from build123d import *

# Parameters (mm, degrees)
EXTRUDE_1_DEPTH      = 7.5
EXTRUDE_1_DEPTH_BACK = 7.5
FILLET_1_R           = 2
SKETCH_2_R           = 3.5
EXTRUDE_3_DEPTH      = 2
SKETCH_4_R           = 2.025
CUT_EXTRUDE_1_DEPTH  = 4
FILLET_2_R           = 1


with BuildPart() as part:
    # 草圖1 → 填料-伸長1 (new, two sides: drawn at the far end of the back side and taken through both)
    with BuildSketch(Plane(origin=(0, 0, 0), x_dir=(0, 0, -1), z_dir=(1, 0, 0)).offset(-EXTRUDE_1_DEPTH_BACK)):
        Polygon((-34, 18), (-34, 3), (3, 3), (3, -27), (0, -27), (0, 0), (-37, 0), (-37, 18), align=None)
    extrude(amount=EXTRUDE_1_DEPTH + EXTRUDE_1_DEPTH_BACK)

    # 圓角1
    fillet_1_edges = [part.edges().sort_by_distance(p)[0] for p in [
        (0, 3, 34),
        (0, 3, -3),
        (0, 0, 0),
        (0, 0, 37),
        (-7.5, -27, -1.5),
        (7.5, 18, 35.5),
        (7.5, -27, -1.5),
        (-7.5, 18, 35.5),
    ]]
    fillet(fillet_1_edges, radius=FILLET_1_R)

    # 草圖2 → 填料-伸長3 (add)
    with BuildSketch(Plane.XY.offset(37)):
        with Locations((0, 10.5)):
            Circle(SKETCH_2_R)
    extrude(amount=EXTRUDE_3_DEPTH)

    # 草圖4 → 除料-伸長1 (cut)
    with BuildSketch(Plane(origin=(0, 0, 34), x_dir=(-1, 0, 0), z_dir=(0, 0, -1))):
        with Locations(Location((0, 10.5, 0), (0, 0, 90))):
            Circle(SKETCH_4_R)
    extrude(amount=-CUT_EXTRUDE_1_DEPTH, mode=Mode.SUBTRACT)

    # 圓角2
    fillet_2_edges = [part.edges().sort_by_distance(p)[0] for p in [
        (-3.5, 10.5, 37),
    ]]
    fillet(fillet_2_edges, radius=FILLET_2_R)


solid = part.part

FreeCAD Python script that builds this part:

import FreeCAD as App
import Part
import Sketcher
from FreeCAD import Vector


def edges_at(feature, points):
    """Names of the edges that pass closest to the given points."""
    edges = feature.Shape.Edges
    near = lambda p: min(range(len(edges)), key=lambda i: edges[i].distToShape(Part.Vertex(*p))[0])
    return sorted({f"Edge{near(p) + 1}" for p in points})

doc = App.newDocument("Part")
body = doc.addObject("PartDesign::Body", "Body")

# Sketch on YZ plane
sketch1 = body.newObject("Sketcher::SketchObject", "Sketch")
sketch1.AttachmentSupport = (doc.getObject("YZ_Plane"), [""])
sketch1.MapMode = "FlatFace"
sketch1.addGeometry([
    Part.LineSegment(Vector(3, 34, 0), Vector(18, 34, 0)),  # 0
    Part.LineSegment(Vector(18, 34, 0), Vector(18, 37, 0)),  # 1
    Part.LineSegment(Vector(18, 37, 0), Vector(0, 37, 0)),  # 2
    Part.LineSegment(Vector(0, 37, 0), Vector(0, 0, 0)),  # 3
    Part.LineSegment(Vector(0, 0, 0), Vector(-27, 0, 0)),  # 4
    Part.LineSegment(Vector(-27, 0, 0), Vector(-27, -3, 0)),  # 5
    Part.LineSegment(Vector(-27, -3, 0), Vector(3, -3, 0)),  # 6
    Part.LineSegment(Vector(3, -3, 0), Vector(3, 34, 0)),  # 7
], False)
sketch1.addConstraint([
    Sketcher.Constraint("Coincident", 0, 2, 1, 1),
    Sketcher.Constraint("Coincident", 1, 2, 2, 1),
    Sketcher.Constraint("Coincident", 2, 2, 3, 1),
    Sketcher.Constraint("Coincident", 3, 2, 4, 1),
    Sketcher.Constraint("Coincident", 4, 2, 5, 1),
    Sketcher.Constraint("Coincident", 5, 2, 6, 1),
    Sketcher.Constraint("Coincident", 6, 2, 7, 1),
    Sketcher.Constraint("Coincident", 7, 2, 0, 1),
    Sketcher.Constraint("Horizontal", 0),
    Sketcher.Constraint("Vertical", 1),
    Sketcher.Constraint("Horizontal", 2),
    Sketcher.Constraint("Vertical", 3),
    Sketcher.Constraint("Horizontal", 4),
    Sketcher.Constraint("Vertical", 5),
    Sketcher.Constraint("Horizontal", 6),
    Sketcher.Constraint("Vertical", 7),
    Sketcher.Constraint("Coincident", 3, 2, -1, 1),
    Sketcher.Constraint("Equal", 1, 5),
    Sketcher.Constraint("DistanceX", 0, 1, 0, 2, 15.0),
    Sketcher.Constraint("DistanceX", 2, 2, 2, 1, 18.0),
    Sketcher.Constraint("DistanceX", 4, 2, 4, 1, 27.0),
    Sketcher.Constraint("DistanceY", 1, 1, 1, 2, 3.0),
    Sketcher.Constraint("DistanceY", 3, 2, 3, 1, 37.0),
])
pad1 = body.newObject("PartDesign::Pad", "Pad")
pad1.Profile = sketch1
pad1.Type = "TwoLengths"
pad1.Length = 7.5
pad1.Length2 = 7.5
doc.recompute()

fillet = body.newObject("PartDesign::Fillet", "Fillet")
fillet.Base = (pad1, edges_at(pad1, [
    (0, 3, 34),
    (0, 3, -3),
    (0, 0, 0),
    (0, 0, 37),
    (-7.5, -27, -1.5),
    (7.5, 18, 35.5),
    (7.5, -27, -1.5),
    (-7.5, 18, 35.5),
]))
fillet.Radius = 2

# Sketch on XY plane
sketch2 = body.newObject("Sketcher::SketchObject", "Sketch001")
sketch2.AttachmentSupport = (doc.getObject("XY_Plane"), [""])
sketch2.MapMode = "FlatFace"
sketch2.AttachmentOffset = App.Placement(Vector(0, 0, 37), App.Rotation())
sketch2.addGeometry(Part.Circle(Vector(0, 10.5, 0), Vector(0, 0, 1), 3.5), False)
sketch2.addConstraint([
    Sketcher.Constraint("PointOnObject", 0, 3, -2),
    Sketcher.Constraint("Diameter", 0, 7.0),
    Sketcher.Constraint("DistanceY", -1, 1, 0, 3, 10.5),
])
pad2 = body.newObject("PartDesign::Pad", "Pad001")
pad2.Profile = sketch2
pad2.Length = 2

# Sketch on XY plane
sketch3 = body.newObject("Sketcher::SketchObject", "Sketch002")
sketch3.AttachmentSupport = (doc.getObject("XY_Plane"), [""])
sketch3.MapMode = "FlatFace"
sketch3.AttachmentOffset = App.Placement(Vector(0, 0, 34), App.Rotation())
sketch3.addGeometry(Part.Circle(Vector(0, 10.5, 0), Vector(0, 0, 1), 2), False)
sketch3.addConstraint([
    Sketcher.Constraint("PointOnObject", 0, 3, -2),
    Sketcher.Constraint("Diameter", 0, 4.05),
    Sketcher.Constraint("DistanceY", -1, 1, 0, 3, 10.5),
])
pocket1 = body.newObject("PartDesign::Pocket", "Pocket")
pocket1.Profile = sketch3
pocket1.Length = 4
pocket1.Reversed = True
doc.recompute()

fillet2 = body.newObject("PartDesign::Fillet", "Fillet001")
fillet2.Base = (pocket1, edges_at(pocket1, [(-3.5, 10.5, 37)]))
fillet2.Radius = 1

doc.recompute()
